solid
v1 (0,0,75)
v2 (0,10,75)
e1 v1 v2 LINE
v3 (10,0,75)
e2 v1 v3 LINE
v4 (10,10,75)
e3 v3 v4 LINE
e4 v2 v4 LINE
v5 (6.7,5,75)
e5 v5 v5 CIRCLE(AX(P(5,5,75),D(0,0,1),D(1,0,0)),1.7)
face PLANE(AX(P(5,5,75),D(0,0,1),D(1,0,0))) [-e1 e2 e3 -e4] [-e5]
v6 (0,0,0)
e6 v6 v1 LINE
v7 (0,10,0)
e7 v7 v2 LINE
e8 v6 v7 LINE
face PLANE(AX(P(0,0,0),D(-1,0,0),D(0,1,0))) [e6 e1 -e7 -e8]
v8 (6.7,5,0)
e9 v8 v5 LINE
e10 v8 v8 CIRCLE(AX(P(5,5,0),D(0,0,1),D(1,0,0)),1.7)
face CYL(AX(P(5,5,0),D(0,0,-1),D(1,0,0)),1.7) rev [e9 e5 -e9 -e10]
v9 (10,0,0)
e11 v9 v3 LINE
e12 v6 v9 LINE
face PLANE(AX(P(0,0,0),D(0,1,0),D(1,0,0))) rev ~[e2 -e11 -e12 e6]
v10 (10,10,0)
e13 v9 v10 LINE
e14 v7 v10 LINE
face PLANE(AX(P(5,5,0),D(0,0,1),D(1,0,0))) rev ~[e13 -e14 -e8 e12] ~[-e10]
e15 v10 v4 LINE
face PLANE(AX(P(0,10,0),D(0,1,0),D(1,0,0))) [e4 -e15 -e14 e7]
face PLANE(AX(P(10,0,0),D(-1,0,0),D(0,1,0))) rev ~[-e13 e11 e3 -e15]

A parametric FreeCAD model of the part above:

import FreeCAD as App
import Part
import Sketcher

V = App.Vector
Q = App.Units.Quantity

doc = App.newDocument("Part")
body = doc.addObject("PartDesign::Body", "Body")

sketch1 = doc.addObject("Sketcher::SketchObject", "Sketch")
body.addObject(sketch1)
sketch1.AttachmentSupport = (doc.XY_Plane, [""])
sketch1.MapMode = "FlatFace"
sketch1.addGeometry(Part.LineSegment(V(0, 10, 0), V(0, 0, 0)), False)
sketch1.addGeometry(Part.LineSegment(V(0, 0, 0), V(10, 0, 0)), False)
sketch1.addGeometry(Part.LineSegment(V(10, 0, 0), V(10, 10, 0)), False)
sketch1.addGeometry(Part.LineSegment(V(10, 10, 0), V(0, 10, 0)), False)
sketch1.addGeometry(Part.Circle(V(5, 5, 0), V(0, 0, 1), 1.7), False)
sketch1.addConstraint(Sketcher.Constraint("Coincident", 0, 2, 1, 1))
sketch1.addConstraint(Sketcher.Constraint("Coincident", 1, 2, 2, 1))
sketch1.addConstraint(Sketcher.Constraint("Coincident", 2, 2, 3, 1))
sketch1.addConstraint(Sketcher.Constraint("Coincident", 3, 2, 0, 1))
sketch1.addConstraint(Sketcher.Constraint("Vertical", 0))
sketch1.addConstraint(Sketcher.Constraint("Horizontal", 1))
sketch1.addConstraint(Sketcher.Constraint("Vertical", 2))
sketch1.addConstraint(Sketcher.Constraint("Horizontal", 3))
sketch1.addConstraint(Sketcher.Constraint("Coincident", 0, 2, -1, 1))
sketch1.addConstraint(Sketcher.Constraint("Equal", 3, 0))
sketch1.addConstraint(Sketcher.Constraint("Diameter", 4, Q("3.4 mm")))
sketch1.addConstraint(Sketcher.Constraint("DistanceX", 1, 1, 1, 2, Q("10 mm")))
sketch1.addConstraint(Sketcher.Constraint("DistanceX", -1, 1, 4, 3, Q("5 mm")))
sketch1.addConstraint(Sketcher.Constraint("DistanceY", -1, 1, 4, 3, Q("5 mm")))
pad1 = doc.addObject("PartDesign::Pad", "Pad")
body.addObject(pad1)
pad1.Profile = sketch1
pad1.Length = 75

doc.recompute()
